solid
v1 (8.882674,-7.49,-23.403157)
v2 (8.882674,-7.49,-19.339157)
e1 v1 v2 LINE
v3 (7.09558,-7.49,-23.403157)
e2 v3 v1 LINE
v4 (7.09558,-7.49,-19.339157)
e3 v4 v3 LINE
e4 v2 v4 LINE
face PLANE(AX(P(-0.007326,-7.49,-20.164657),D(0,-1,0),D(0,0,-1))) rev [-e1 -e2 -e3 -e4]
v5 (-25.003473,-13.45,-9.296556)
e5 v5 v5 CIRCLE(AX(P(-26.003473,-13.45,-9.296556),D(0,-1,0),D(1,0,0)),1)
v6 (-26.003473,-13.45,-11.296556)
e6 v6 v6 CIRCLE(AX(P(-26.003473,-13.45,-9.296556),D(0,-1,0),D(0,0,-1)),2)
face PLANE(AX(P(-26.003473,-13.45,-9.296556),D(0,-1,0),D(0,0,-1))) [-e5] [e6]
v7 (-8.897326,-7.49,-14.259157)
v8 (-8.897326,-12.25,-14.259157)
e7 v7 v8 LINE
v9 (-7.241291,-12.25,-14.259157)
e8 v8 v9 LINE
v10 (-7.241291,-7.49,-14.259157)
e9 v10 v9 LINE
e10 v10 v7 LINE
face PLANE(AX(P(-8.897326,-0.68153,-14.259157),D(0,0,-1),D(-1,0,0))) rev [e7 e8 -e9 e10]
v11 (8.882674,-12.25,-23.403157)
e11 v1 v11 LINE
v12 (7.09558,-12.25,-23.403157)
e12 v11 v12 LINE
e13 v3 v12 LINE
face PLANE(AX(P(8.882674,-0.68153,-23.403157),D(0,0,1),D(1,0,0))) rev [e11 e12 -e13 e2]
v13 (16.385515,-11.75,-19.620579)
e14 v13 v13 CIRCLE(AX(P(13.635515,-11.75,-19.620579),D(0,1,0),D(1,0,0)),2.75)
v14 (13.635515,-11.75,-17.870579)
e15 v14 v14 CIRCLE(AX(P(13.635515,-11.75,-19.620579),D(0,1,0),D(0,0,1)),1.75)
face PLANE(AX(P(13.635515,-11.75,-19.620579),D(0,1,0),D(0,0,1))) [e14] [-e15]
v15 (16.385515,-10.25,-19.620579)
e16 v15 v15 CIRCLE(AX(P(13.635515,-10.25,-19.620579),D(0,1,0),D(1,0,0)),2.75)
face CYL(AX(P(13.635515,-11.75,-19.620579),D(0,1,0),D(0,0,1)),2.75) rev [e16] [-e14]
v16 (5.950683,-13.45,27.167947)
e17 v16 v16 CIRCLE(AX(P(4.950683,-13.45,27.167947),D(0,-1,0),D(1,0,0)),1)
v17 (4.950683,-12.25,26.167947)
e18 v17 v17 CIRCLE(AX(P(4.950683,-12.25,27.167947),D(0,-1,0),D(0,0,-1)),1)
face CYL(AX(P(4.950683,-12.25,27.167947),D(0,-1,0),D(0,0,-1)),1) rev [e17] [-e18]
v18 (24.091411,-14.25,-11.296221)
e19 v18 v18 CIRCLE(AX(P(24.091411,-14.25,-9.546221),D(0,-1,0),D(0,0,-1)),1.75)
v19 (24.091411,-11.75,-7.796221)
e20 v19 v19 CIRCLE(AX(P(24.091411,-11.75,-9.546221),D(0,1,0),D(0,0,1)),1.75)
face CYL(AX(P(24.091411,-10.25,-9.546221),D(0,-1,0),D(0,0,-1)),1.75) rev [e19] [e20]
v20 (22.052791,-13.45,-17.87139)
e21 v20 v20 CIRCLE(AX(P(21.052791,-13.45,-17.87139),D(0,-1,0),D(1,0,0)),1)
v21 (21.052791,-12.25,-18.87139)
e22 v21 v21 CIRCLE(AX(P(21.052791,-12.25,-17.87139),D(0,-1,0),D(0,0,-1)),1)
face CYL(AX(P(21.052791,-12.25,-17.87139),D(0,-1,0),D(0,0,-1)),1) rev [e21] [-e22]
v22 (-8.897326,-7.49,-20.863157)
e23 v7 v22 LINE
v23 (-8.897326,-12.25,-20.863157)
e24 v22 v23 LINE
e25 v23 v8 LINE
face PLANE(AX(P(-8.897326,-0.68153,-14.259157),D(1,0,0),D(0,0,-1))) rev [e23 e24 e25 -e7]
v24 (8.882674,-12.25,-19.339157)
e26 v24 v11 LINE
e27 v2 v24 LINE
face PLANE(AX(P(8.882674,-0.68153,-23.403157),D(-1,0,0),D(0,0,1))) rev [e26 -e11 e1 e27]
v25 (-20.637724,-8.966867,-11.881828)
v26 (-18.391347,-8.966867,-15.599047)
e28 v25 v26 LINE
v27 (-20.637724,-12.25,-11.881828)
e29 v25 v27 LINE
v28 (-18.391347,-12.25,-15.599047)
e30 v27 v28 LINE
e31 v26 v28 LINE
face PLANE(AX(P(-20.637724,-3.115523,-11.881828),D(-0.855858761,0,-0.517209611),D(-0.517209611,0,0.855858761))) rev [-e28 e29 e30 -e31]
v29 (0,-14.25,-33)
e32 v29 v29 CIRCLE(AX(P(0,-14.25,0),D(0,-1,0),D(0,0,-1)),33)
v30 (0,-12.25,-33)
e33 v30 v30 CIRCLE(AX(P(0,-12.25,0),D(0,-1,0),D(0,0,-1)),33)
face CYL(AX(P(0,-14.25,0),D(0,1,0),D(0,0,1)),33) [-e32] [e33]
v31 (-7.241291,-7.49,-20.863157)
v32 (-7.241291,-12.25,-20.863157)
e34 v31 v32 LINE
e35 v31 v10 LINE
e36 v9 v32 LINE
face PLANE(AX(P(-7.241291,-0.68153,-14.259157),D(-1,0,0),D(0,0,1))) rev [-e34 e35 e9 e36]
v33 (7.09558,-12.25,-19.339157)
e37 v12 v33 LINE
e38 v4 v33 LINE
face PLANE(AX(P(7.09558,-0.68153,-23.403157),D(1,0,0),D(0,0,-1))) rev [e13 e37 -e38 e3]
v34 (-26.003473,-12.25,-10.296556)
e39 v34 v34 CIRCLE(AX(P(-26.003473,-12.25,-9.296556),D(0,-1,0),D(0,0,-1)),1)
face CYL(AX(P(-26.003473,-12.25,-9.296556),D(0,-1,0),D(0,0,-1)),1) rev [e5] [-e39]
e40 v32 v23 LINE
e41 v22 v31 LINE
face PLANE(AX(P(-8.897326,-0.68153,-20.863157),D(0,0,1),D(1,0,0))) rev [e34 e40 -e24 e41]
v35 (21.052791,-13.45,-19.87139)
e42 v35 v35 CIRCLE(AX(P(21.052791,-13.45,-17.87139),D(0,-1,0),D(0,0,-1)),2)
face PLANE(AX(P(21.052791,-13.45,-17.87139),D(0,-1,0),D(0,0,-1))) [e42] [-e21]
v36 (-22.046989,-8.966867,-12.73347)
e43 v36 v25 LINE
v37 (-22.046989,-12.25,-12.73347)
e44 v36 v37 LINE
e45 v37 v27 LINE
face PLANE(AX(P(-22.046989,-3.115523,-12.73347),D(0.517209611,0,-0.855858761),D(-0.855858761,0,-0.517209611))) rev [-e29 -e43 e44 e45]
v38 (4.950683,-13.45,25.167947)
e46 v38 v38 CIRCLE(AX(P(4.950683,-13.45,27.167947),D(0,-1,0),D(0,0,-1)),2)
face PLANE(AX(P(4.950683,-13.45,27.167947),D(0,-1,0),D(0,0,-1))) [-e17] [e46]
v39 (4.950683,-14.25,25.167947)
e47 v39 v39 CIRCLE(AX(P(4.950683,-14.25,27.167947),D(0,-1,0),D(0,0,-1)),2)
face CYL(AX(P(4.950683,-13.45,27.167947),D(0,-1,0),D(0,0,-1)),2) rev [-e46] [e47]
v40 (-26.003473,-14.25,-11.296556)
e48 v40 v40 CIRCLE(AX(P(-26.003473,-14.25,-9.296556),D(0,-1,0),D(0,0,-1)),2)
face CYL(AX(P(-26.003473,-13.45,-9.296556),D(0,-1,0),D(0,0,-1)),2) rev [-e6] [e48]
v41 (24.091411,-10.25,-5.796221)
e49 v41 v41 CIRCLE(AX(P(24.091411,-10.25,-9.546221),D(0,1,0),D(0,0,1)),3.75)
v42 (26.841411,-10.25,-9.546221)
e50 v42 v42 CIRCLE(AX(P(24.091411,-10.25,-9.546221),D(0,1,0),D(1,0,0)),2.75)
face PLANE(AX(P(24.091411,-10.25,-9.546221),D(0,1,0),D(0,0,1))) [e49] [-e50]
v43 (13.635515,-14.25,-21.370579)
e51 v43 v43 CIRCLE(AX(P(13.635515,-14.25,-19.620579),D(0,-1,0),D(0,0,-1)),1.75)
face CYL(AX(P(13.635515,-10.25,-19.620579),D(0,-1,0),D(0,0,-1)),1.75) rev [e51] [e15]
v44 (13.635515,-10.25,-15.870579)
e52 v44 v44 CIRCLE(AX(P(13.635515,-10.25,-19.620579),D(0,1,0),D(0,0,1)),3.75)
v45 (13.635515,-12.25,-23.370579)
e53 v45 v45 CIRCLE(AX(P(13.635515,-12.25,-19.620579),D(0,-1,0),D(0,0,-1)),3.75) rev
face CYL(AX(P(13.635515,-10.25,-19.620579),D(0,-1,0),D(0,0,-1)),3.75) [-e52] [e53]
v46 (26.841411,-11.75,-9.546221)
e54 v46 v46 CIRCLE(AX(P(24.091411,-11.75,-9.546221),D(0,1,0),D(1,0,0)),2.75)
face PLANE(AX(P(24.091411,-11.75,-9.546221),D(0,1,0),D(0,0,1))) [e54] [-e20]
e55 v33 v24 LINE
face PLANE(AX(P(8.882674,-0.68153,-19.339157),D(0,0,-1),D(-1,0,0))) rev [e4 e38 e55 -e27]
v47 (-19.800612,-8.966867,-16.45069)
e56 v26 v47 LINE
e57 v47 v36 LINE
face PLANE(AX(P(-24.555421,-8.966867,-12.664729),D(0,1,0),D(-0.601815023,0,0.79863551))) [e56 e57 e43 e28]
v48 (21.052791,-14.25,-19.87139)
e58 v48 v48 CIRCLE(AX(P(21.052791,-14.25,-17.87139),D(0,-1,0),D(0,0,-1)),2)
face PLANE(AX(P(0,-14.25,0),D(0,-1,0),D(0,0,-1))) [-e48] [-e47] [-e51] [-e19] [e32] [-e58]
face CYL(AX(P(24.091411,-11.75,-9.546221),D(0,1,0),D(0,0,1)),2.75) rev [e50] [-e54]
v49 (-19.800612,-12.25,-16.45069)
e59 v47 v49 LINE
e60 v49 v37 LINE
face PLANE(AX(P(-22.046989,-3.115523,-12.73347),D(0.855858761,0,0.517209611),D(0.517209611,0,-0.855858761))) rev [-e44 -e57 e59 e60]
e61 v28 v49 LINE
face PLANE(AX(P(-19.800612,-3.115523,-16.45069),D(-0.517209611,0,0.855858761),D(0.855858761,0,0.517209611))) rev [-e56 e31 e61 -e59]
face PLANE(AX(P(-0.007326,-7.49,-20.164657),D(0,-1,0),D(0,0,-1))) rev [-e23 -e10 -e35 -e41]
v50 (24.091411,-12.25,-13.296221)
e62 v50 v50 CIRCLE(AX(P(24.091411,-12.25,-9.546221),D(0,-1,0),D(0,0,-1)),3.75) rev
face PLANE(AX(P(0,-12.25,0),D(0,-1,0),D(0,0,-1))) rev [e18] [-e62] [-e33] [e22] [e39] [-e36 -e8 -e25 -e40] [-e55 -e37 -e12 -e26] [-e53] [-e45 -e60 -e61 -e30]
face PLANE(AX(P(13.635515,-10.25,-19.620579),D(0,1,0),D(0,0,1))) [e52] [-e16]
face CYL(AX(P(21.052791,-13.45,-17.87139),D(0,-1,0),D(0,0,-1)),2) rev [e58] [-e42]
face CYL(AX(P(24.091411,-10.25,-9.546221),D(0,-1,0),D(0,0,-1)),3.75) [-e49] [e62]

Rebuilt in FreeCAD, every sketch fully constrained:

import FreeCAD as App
import Part
import Sketcher

V = App.Vector


def add_polygon(sketch, points):
    """Adds a closed chain of lines whose ends are joined by coincident constraints."""
    first, n = sketch.GeometryCount, len(points)
    for a, b in zip(points, points[1:] + points[:1]):
        sketch.addGeometry(Part.LineSegment(App.Vector(*a, 0), App.Vector(*b, 0)), False)
    for i in range(n):
        sketch.addConstraint(Sketcher.Constraint("Coincident", first + i, 2, first + (i + 1) % n, 1))

doc = App.newDocument("Part")
body = doc.addObject("PartDesign::Body", "Body")

sketch1 = doc.addObject("Sketcher::SketchObject", "Sketch")
body.addObject(sketch1)
sketch1.AttachmentSupport = (doc.XZ_Plane, [""])
sketch1.MapMode = "FlatFace"
sketch1.AttachmentOffset = App.Placement(V(0, 0, 12.25), App.Rotation())
sketch1.addGeometry(Part.Circle(V(0, 0, 0), V(0, 0, 1), 33), False)
sketch1.addConstraint(Sketcher.Constraint("Coincident", 0, 3, -1, 1))
sketch1.addConstraint(Sketcher.Constraint("Diameter", 0, 66.0))
pad1 = doc.addObject("PartDesign::Pad", "Pad")
body.addObject(pad1)
pad1.Profile = sketch1
pad1.Length = 2

sketch2 = doc.addObject("Sketcher::SketchObject", "Sketch001")
body.addObject(sketch2)
sketch2.AttachmentSupport = (doc.XZ_Plane, [""])
sketch2.MapMode = "FlatFace"
sketch2.AttachmentOffset = App.Placement(V(0, 0, 12.25), App.Rotation())
add_polygon(sketch2, [(-8.9, -20.9), (-8.9, -14.3), (-7.2, -14.3), (-7.2, -20.9)])
add_polygon(sketch2, [(7.1, -23.4), (7.1, -19.3), (8.9, -19.3), (8.9, -23.4)])
sketch2.addConstraint(Sketcher.Constraint("Vertical", 0))
sketch2.addConstraint(Sketcher.Constraint("Horizontal", 1))
sketch2.addConstraint(Sketcher.Constraint("Vertical", 2))
sketch2.addConstraint(Sketcher.Constraint("Horizontal", 3))
sketch2.addConstraint(Sketcher.Constraint("Vertical", 4))
sketch2.addConstraint(Sketcher.Constraint("Horizontal", 5))
sketch2.addConstraint(Sketcher.Constraint("Vertical", 6))
sketch2.addConstraint(Sketcher.Constraint("Horizontal", 7))
sketch2.addConstraint(Sketcher.Constraint("DistanceY", 0, 1, 0, 2, 6.604))
sketch2.addConstraint(Sketcher.Constraint("DistanceY", 4, 1, 4, 2, 4.064))
sketch2.addConstraint(Sketcher.Constraint("DistanceY", 4, 2, 1, 2, 5.08))
sketch2.addConstraint(Sketcher.Constraint("DistanceX", 3, 2, 5, 2, 17.78))
sketch2.addConstraint(Sketcher.Constraint("DistanceX", 1, 1, 1, 2, 1.656035))
sketch2.addConstraint(Sketcher.Constraint("DistanceX", 5, 1, 5, 2, 1.787094))
sketch2.addConstraint(Sketcher.Constraint("DistanceX", 1, 2, -1, 1, 7.241291))
sketch2.addConstraint(Sketcher.Constraint("DistanceY", 0, 2, -1, 1, 14.259157))
pad2 = doc.addObject("PartDesign::Pad", "Pad001")
body.addObject(pad2)
pad2.Profile = sketch2
pad2.Length = 4.76
pad2.Reversed = True

sketch3 = doc.addObject("Sketcher::SketchObject", "Sketch002")
body.addObject(sketch3)
sketch3.AttachmentSupport = (doc.XZ_Plane, [""])
sketch3.MapMode = "FlatFace"
sketch3.AttachmentOffset = App.Placement(V(0, 0, 12.25), App.Rotation())
add_polygon(sketch3, [(-19.8, -16.5), (-22, -12.7), (-20.6, -11.9), (-18.4, -15.6)])
sketch3.addConstraint(Sketcher.Constraint("Perpendicular", 0, 1))
sketch3.addConstraint(Sketcher.Constraint("Perpendicular", 1, 2))
sketch3.addConstraint(Sketcher.Constraint("Perpendicular", 2, 3))
sketch3.addConstraint(Sketcher.Constraint("Distance", 1, 1.64661))
sketch3.addConstraint(Sketcher.Constraint("DistanceX", 0, 2, -1, 1, 22.046989))
sketch3.addConstraint(Sketcher.Constraint("DistanceY", 0, 2, -1, 1, 12.73347))
sketch3.addConstraint(Sketcher.Constraint("DistanceY", 3, 2, -1, 1, 16.45069))
sketch3.addConstraint(Sketcher.Constraint("DistanceX", 1, 2, 3, 2, 0.837112))
pad3 = doc.addObject("PartDesign::Pad", "Pad002")
body.addObject(pad3)
pad3.Profile = sketch3
pad3.Length = 3.283133
pad3.Reversed = True

sketch4 = doc.addObject("Sketcher::SketchObject", "Sketch003")
body.addObject(sketch4)
sketch4.AttachmentSupport = (doc.XZ_Plane, [""])
sketch4.MapMode = "FlatFace"
sketch4.AttachmentOffset = App.Placement(V(0, 0, 12.25), App.Rotation())
sketch4.addGeometry(Part.Circle(V(13.6, -19.6, 0), V(0, 0, 1), 3.8), False)
sketch4.addGeometry(Part.Circle(V(13.6, -19.6, 0), V(0, 0, 1), 1.8), False)
sketch4.addGeometry(Part.Circle(V(24.1, -9.5, 0), V(0, 0, 1), 3.8), False)
sketch4.addGeometry(Part.Circle(V(24.1, -9.5, 0), V(0, 0, 1), 1.8), False)
sketch4.addConstraint(Sketcher.Constraint("Coincident", 1, 3, 0, 3))
sketch4.addConstraint(Sketcher.Constraint("Coincident", 3, 3, 2, 3))
sketch4.addConstraint(Sketcher.Constraint("Equal", 0, 2))
sketch4.addConstraint(Sketcher.Constraint("Equal", 1, 3))
sketch4.addConstraint(Sketcher.Constraint("Diameter", 0, 7.5))
sketch4.addConstraint(Sketcher.Constraint("Diameter", 1, 3.5))
sketch4.addConstraint(Sketcher.Constraint("DistanceY", 0, 3, -1, 1, 19.620579))
sketch4.addConstraint(Sketcher.Constraint("DistanceX", -1, 1, 2, 3, 24.091411))
sketch4.addConstraint(Sketcher.Constraint("DistanceY", 2, 3, -1, 1, 9.546221))
sketch4.addConstraint(Sketcher.Constraint("DistanceX", -1, 1, 0, 3, 13.635515))
pad4 = doc.addObject("PartDesign::Pad", "Pad003")
body.addObject(pad4)
pad4.Profile = sketch4
pad4.Length = 2
pad4.Reversed = True

sketch5 = doc.addObject("Sketcher::SketchObject", "Sketch004")
body.addObject(sketch5)
sketch5.AttachmentSupport = (doc.XZ_Plane, [""])
sketch5.MapMode = "FlatFace"
sketch5.AttachmentOffset = App.Placement(V(0, 0, 14.25), App.Rotation())
sketch5.addGeometry(Part.Circle(V(24.1, -9.5, 0), V(0, 0, 1), 1.8), False)
sketch5.addGeometry(Part.Circle(V(13.6, -19.6, 0), V(0, 0, 1), 1.8), False)
sketch5.addConstraint(Sketcher.Constraint("Equal", 0, 1))
sketch5.addConstraint(Sketcher.Constraint("Diameter", 0, 3.5))
sketch5.addConstraint(Sketcher.Constraint("DistanceX", -1, 1, 0, 3, 24.091411))
sketch5.addConstraint(Sketcher.Constraint("DistanceY", 0, 3, -1, 1, 9.546221))
sketch5.addConstraint(Sketcher.Constraint("DistanceY", 1, 3, -1, 1, 19.620579))
sketch5.addConstraint(Sketcher.Constraint("DistanceX", -1, 1, 1, 3, 13.635515))
pocket1 = doc.addObject("PartDesign::Pocket", "Pocket")
body.addObject(pocket1)
pocket1.Profile = sketch5
pocket1.Length = 2

sketch6 = doc.addObject("Sketcher::SketchObject", "Sketch005")
body.addObject(sketch6)
sketch6.AttachmentSupport = (doc.XZ_Plane, [""])
sketch6.MapMode = "FlatFace"
sketch6.AttachmentOffset = App.Placement(V(0, 0, 11.75), App.Rotation())
sketch6.addGeometry(Part.Circle(V(13.6, -19.6, 0), V(0, 0, 1), 2.8), False)
sketch6.addGeometry(Part.Circle(V(13.6, -19.6, 0), V(0, 0, 1), 1.8), False)
sketch6.addConstraint(Sketcher.Constraint("Coincident", 1, 3, 0, 3))
sketch6.addConstraint(Sketcher.Constraint("Diameter", 0, 5.5))
sketch6.addConstraint(Sketcher.Constraint("Diameter", 1, 3.5))
sketch6.addConstraint(Sketcher.Constraint("DistanceY", 0, 3, -1, 1, 19.620579))
sketch6.addConstraint(Sketcher.Constraint("DistanceX", -1, 1, 0, 3, 13.635515))
pocket2 = doc.addObject("PartDesign::Pocket", "Pocket001")
body.addObject(pocket2)
pocket2.Profile = sketch6
pocket2.Length = 1.5

sketch7 = doc.addObject("Sketcher::SketchObject", "Sketch006")
body.addObject(sketch7)
sketch7.AttachmentSupport = (doc.XZ_Plane, [""])
sketch7.MapMode = "FlatFace"
sketch7.AttachmentOffset = App.Placement(V(0, 0, 11.75), App.Rotation())
sketch7.addGeometry(Part.Circle(V(24.1, -9.5, 0), V(0, 0, 1), 2.8), False)
sketch7.addGeometry(Part.Circle(V(24.1, -9.5, 0), V(0, 0, 1), 1.8), False)
sketch7.addConstraint(Sketcher.Constraint("Coincident", 1, 3, 0, 3))
sketch7.addConstraint(Sketcher.Constraint("Diameter", 0, 5.5))
sketch7.addConstraint(Sketcher.Constraint("Diameter", 1, 3.5))
sketch7.addConstraint(Sketcher.Constraint("DistanceX", -1, 1, 0, 3, 24.091411))
sketch7.addConstraint(Sketcher.Constraint("DistanceY", 0, 3, -1, 1, 9.546221))
pocket3 = doc.addObject("PartDesign::Pocket", "Pocket002")
body.addObject(pocket3)
pocket3.Profile = sketch7
pocket3.Length = 1.5

sketch8 = doc.addObject("Sketcher::SketchObject", "Sketch007")
body.addObject(sketch8)
sketch8.AttachmentSupport = (doc.XZ_Plane, [""])
sketch8.MapMode = "FlatFace"
sketch8.AttachmentOffset = App.Placement(V(0, 0, 14.25), App.Rotation())
sketch8.addGeometry(Part.Circle(V(-26, -9.3, 0), V(0, 0, 1), 1), False)
sketch8.addGeometry(Part.Circle(V(5, 27.2, 0), V(0, 0, 1), 1), False)
sketch8.addGeometry(Part.Circle(V(21.1, -17.9, 0), V(0, 0, 1), 1), False)
sketch8.addConstraint(Sketcher.Constraint("Equal", 0, 1))
sketch8.addConstraint(Sketcher.Constraint("Equal", 1, 2))
sketch8.addConstraint(Sketcher.Constraint("Diameter", 0, 2.0))
sketch8.addConstraint(Sketcher.Constraint("DistanceX", -1, 1, 2, 3, 21.052791))
sketch8.addConstraint(Sketcher.Constraint("DistanceY", 2, 3, -1, 1, 17.87139))
sketch8.addConstraint(Sketcher.Constraint("DistanceX", 1, 3, 2, 3, 16.102108))
sketch8.addConstraint(Sketcher.Constraint("DistanceX", 0, 3, -1, 1, 26.003473))
sketch8.addConstraint(Sketcher.Constraint("DistanceY", 0, 3, -1, 1, 9.296556))
sketch8.addConstraint(Sketcher.Constraint("DistanceY", -1, 1, 1, 3, 27.167947))
pocket4 = doc.addObject("PartDesign::Pocket", "Pocket003")
body.addObject(pocket4)
pocket4.Profile = sketch8
pocket4.Length = 2

sketch9 = doc.addObject("Sketcher::SketchObject", "Sketch008")
body.addObject(sketch9)
sketch9.AttachmentSupport = (doc.XZ_Plane, [""])
sketch9.MapMode = "FlatFace"
sketch9.AttachmentOffset = App.Placement(V(0, 0, 14.25), App.Rotation())
sketch9.addGeometry(Part.Circle(V(5, 27.2, 0), V(0, 0, 1), 2), False)
sketch9.addGeometry(Part.Circle(V(5, 27.2, 0), V(0, 0, 1), 1), False)
sketch9.addGeometry(Part.Circle(V(21.1, -17.9, 0), V(0, 0, 1), 2), False)
sketch9.addGeometry(Part.Circle(V(21.1, -17.9, 0), V(0, 0, 1), 1), False)
sketch9.addGeometry(Part.Circle(V(-26, -9.3, 0), V(0, 0, 1), 2), False)
sketch9.addGeometry(Part.Circle(V(-26, -9.3, 0), V(0, 0, 1), 1), False)
sketch9.addConstraint(Sketcher.Constraint("Coincident", 1, 3, 0, 3))
sketch9.addConstraint(Sketcher.Constraint("Coincident", 3, 3, 2, 3))
sketch9.addConstraint(Sketcher.Constraint("Coincident", 5, 3, 4, 3))
sketch9.addConstraint(Sketcher.Constraint("Equal", 0, 2))
sketch9.addConstraint(Sketcher.Constraint("Equal", 1, 3))
sketch9.addConstraint(Sketcher.Constraint("Equal", 2, 4))
sketch9.addConstraint(Sketcher.Constraint("Equal", 3, 5))
sketch9.addConstraint(Sketcher.Constraint("Diameter", 0, 4.0))
sketch9.addConstraint(Sketcher.Constraint("Diameter", 1, 2.0))
sketch9.addConstraint(Sketcher.Constraint("DistanceX", -1, 1, 2, 3, 21.052791))
sketch9.addConstraint(Sketcher.Constraint("DistanceY", 2, 3, -1, 1, 17.87139))
sketch9.addConstraint(Sketcher.Constraint("DistanceX", 0, 3, 2, 3, 16.102108))
sketch9.addConstraint(Sketcher.Constraint("DistanceY", -1, 1, 0, 3, 27.167947))
sketch9.addConstraint(Sketcher.Constraint("DistanceX", 4, 3, -1, 1, 26.003473))
sketch9.addConstraint(Sketcher.Constraint("DistanceY", 4, 3, -1, 1, 9.296556))
pocket5 = doc.addObject("PartDesign::Pocket", "Pocket004")
body.addObject(pocket5)
pocket5.Profile = sketch9
pocket5.Length = 0.8

doc.recompute()
